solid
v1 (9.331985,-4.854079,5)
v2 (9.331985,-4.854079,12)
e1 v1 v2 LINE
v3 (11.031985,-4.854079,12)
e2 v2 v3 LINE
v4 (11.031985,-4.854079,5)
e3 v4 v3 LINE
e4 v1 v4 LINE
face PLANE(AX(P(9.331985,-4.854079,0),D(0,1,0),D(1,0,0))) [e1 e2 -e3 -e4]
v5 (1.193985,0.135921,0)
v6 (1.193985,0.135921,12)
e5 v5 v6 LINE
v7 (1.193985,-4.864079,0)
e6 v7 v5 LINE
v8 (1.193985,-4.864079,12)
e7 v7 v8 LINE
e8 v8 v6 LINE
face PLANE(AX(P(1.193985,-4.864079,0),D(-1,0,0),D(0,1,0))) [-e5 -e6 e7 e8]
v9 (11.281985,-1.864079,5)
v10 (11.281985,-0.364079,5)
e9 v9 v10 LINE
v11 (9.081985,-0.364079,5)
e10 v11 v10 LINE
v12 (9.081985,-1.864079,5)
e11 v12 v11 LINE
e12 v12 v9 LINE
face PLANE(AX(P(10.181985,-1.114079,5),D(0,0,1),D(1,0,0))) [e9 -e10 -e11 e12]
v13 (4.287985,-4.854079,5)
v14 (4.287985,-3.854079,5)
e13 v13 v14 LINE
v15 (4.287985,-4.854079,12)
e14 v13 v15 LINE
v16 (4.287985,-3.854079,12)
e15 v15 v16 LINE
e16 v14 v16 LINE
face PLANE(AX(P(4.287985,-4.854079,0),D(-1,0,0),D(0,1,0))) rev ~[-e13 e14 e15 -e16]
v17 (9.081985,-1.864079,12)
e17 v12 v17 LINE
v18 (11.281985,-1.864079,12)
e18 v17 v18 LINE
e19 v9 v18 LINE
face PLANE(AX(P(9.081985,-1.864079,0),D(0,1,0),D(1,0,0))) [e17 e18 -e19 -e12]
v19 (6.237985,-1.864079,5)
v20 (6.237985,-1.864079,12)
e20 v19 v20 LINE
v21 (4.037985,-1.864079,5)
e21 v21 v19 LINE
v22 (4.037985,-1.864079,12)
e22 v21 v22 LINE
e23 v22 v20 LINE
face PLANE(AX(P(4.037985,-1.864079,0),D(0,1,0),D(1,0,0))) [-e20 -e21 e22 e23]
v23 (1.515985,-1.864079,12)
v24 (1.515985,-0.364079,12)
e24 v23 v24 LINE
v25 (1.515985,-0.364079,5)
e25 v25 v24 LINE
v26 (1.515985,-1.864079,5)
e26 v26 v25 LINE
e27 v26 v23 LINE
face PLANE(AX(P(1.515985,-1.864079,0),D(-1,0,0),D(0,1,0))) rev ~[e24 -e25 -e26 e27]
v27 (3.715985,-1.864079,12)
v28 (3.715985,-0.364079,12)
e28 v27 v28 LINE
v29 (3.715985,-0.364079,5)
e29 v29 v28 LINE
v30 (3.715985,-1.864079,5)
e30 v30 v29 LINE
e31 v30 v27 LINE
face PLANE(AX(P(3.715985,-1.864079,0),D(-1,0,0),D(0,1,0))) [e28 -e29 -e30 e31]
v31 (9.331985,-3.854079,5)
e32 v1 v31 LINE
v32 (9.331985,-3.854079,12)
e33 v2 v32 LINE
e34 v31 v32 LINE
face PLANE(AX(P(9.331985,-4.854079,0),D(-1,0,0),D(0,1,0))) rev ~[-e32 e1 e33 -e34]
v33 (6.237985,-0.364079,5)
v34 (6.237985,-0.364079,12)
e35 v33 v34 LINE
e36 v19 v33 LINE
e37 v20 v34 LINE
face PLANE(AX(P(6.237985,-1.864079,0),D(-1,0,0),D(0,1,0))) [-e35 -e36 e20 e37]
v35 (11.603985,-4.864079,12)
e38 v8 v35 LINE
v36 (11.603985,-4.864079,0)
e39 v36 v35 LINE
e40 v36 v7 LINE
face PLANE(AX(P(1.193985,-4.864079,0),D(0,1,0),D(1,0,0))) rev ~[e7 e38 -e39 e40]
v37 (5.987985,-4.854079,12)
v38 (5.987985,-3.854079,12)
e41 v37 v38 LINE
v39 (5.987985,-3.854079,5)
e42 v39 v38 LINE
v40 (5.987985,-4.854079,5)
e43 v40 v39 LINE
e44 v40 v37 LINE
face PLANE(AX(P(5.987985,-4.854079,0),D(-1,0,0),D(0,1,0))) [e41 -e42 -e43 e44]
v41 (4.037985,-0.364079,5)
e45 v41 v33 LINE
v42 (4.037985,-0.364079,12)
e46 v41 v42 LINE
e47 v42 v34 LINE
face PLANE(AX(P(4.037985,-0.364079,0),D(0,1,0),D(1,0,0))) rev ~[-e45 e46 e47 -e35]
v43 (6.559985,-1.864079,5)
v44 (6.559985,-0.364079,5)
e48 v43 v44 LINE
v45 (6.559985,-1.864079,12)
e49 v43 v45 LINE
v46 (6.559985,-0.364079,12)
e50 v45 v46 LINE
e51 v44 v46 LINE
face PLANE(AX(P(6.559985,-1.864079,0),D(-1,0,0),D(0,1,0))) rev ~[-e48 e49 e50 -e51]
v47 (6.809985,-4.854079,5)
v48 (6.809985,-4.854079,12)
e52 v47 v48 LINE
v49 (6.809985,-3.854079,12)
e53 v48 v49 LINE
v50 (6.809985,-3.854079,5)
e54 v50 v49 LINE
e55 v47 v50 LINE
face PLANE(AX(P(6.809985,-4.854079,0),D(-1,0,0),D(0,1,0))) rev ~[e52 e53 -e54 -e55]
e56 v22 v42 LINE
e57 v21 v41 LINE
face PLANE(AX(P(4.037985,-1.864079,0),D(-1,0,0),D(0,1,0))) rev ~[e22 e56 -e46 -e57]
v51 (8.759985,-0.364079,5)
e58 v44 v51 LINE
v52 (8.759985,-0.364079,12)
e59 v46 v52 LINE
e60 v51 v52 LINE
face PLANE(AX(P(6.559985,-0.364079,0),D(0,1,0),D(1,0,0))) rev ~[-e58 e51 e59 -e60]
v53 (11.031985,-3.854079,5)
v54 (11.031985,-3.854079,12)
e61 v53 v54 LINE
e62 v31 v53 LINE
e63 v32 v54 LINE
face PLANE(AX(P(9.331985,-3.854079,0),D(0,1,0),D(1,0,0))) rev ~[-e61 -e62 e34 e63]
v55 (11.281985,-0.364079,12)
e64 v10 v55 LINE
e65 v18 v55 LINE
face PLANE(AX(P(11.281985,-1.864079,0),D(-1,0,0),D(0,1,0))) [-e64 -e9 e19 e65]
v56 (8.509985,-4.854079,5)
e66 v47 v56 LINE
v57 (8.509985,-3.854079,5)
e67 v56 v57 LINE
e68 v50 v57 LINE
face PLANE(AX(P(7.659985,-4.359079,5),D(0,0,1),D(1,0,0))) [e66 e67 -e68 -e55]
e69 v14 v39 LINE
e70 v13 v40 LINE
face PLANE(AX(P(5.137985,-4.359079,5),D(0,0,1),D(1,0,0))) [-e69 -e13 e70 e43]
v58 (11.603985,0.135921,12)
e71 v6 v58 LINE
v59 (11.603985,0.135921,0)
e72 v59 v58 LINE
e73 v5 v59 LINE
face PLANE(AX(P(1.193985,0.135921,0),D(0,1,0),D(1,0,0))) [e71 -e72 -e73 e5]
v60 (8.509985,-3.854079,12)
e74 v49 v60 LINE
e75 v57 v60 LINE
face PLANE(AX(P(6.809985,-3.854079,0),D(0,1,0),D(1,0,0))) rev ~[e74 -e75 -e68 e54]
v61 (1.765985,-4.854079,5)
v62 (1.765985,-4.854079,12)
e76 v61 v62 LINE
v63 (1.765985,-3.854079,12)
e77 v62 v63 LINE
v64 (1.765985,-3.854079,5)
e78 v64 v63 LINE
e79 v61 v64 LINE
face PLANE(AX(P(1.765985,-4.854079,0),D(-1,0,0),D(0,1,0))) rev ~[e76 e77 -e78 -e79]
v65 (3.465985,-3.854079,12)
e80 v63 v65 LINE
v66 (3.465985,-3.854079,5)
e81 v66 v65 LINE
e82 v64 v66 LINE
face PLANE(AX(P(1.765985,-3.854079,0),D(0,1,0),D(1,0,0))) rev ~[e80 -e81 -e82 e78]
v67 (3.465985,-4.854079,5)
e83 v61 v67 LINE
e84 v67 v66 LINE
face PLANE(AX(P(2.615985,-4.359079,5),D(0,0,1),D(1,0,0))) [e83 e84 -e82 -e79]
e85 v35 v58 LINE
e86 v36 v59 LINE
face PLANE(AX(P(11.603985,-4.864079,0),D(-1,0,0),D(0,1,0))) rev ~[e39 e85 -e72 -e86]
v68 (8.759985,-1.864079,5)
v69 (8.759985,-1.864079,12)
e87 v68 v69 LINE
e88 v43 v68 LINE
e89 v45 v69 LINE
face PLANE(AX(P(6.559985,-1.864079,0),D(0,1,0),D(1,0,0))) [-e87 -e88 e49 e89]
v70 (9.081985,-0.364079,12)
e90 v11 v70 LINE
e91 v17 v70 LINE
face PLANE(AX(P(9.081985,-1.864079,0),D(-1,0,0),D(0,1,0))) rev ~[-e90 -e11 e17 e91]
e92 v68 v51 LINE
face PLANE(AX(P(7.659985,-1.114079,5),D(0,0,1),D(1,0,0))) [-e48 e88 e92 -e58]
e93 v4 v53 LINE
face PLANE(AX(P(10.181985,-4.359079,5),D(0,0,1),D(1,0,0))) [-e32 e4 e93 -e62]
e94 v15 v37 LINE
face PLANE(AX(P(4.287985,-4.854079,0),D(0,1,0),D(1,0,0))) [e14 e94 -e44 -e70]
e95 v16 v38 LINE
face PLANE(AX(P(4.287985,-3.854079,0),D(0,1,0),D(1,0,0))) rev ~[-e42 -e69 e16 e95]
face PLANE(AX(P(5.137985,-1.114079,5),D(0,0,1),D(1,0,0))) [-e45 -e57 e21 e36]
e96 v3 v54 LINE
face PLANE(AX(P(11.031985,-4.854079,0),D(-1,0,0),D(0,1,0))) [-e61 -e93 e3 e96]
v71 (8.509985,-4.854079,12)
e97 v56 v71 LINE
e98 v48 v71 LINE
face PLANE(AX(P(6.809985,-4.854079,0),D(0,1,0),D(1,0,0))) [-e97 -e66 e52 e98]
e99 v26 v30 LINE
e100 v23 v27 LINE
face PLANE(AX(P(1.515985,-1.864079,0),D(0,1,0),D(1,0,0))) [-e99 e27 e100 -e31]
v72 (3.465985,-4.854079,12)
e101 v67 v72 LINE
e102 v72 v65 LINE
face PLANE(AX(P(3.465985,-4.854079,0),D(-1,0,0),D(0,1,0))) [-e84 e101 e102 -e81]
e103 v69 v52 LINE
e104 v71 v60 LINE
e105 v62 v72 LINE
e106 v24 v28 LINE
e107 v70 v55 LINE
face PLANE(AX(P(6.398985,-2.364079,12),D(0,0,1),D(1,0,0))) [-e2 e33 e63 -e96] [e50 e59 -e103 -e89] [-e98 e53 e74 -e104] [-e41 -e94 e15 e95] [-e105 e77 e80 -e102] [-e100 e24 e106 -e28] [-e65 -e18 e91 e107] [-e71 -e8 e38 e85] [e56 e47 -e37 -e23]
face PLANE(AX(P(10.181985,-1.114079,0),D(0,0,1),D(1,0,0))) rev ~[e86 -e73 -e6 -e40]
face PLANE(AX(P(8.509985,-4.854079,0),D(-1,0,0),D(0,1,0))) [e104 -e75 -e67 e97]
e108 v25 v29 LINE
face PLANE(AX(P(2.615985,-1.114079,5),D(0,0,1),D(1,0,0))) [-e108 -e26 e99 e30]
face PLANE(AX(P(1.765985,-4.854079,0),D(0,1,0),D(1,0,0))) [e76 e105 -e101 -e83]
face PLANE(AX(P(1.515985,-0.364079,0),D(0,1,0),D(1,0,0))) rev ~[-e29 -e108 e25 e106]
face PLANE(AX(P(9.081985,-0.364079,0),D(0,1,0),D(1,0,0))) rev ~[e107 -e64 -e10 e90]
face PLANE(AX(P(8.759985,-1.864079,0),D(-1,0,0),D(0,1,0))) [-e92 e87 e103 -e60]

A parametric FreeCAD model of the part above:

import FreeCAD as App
import Part
import Sketcher
from FreeCAD import Vector


def add_polygon(sketch, points):
    """Adds a closed chain of lines whose ends are joined by coincident constraints."""
    first, n = sketch.GeometryCount, len(points)
    for a, b in zip(points, points[1:] + points[:1]):
        sketch.addGeometry(Part.LineSegment(App.Vector(*a, 0), App.Vector(*b, 0)), False)
    for i in range(n):
        sketch.addConstraint(Sketcher.Constraint("Coincident", first + i, 2, first + (i + 1) % n, 1))

doc = App.newDocument("Part")
body = doc.addObject("PartDesign::Body", "Body")

# Sketch on XY plane
sketch1 = body.newObject("Sketcher::SketchObject", "Sketch")
sketch1.AttachmentSupport = (doc.getObject("XY_Plane"), [""])
sketch1.MapMode = "FlatFace"
add_polygon(sketch1, [(1.2, 0.1), (1.2, -4.9), (11.6, -4.9), (11.6, 0.1)])  # lines 0-3
add_polygon(sketch1, [(3.5, -4.9), (1.8, -4.9), (1.8, -3.9), (3.5, -3.9)])  # lines 4-7
add_polygon(sketch1, [(6, -4.9), (4.3, -4.9), (4.3, -3.9), (6, -3.9)])  # lines 8-11
add_polygon(sketch1, [(8.5, -4.9), (6.8, -4.9), (6.8, -3.9), (8.5, -3.9)])  # lines 12-15
add_polygon(sketch1, [(11, -4.9), (9.3, -4.9), (9.3, -3.9), (11, -3.9)])  # lines 16-19
add_polygon(sketch1, [(3.7, -1.9), (1.5, -1.9), (1.5, -0.4), (3.7, -0.4)])  # lines 20-23
add_polygon(sketch1, [(6.2, -1.9), (4, -1.9), (4, -0.4), (6.2, -0.4)])  # lines 24-27
add_polygon(sketch1, [(8.8, -1.9), (6.6, -1.9), (6.6, -0.4), (8.8, -0.4)])  # lines 28-31
add_polygon(sketch1, [(11.3, -1.9), (9.1, -1.9), (9.1, -0.4), (11.3, -0.4)])  # lines 32-35
sketch1.addConstraint(Sketcher.Constraint("Vertical", 0))
sketch1.addConstraint(Sketcher.Constraint("Horizontal", 1))
sketch1.addConstraint(Sketcher.Constraint("Vertical", 2))
sketch1.addConstraint(Sketcher.Constraint("Horizontal", 3))
sketch1.addConstraint(Sketcher.Constraint("Horizontal", 4))
sketch1.addConstraint(Sketcher.Constraint("Vertical", 5))
sketch1.addConstraint(Sketcher.Constraint("Horizontal", 6))
sketch1.addConstraint(Sketcher.Constraint("Vertical", 7))
sketch1.addConstraint(Sketcher.Constraint("Horizontal", 8))
sketch1.addConstraint(Sketcher.Constraint("Vertical", 9))
sketch1.addConstraint(Sketcher.Constraint("Horizontal", 10))
sketch1.addConstraint(Sketcher.Constraint("Vertical", 11))
sketch1.addConstraint(Sketcher.Constraint("Horizontal", 12))
sketch1.addConstraint(Sketcher.Constraint("Vertical", 13))
sketch1.addConstraint(Sketcher.Constraint("Horizontal", 14))
sketch1.addConstraint(Sketcher.Constraint("Vertical", 15))
sketch1.addConstraint(Sketcher.Constraint("Horizontal", 16))
sketch1.addConstraint(Sketcher.Constraint("Vertical", 17))
sketch1.addConstraint(Sketcher.Constraint("Horizontal", 18))
sketch1.addConstraint(Sketcher.Constraint("Vertical", 19))
sketch1.addConstraint(Sketcher.Constraint("Horizontal", 20))
sketch1.addConstraint(Sketcher.Constraint("Vertical", 21))
sketch1.addConstraint(Sketcher.Constraint("Horizontal", 22))
sketch1.addConstraint(Sketcher.Constraint("Vertical", 23))
sketch1.addConstraint(Sketcher.Constraint("Horizontal", 24))
sketch1.addConstraint(Sketcher.Constraint("Vertical", 25))
sketch1.addConstraint(Sketcher.Constraint("Horizontal", 26))
sketch1.addConstraint(Sketcher.Constraint("Vertical", 27))
sketch1.addConstraint(Sketcher.Constraint("Horizontal", 28))
sketch1.addConstraint(Sketcher.Constraint("Vertical", 29))
sketch1.addConstraint(Sketcher.Constraint("Horizontal", 30))
sketch1.addConstraint(Sketcher.Constraint("Vertical", 31))
sketch1.addConstraint(Sketcher.Constraint("Horizontal", 32))
sketch1.addConstraint(Sketcher.Constraint("Vertical", 33))
sketch1.addConstraint(Sketcher.Constraint("Horizontal", 34))
sketch1.addConstraint(Sketcher.Constraint("Vertical", 35))
sketch1.addConstraint(Sketcher.Constraint("Horizontal", 7, 2, 8, 2))
sketch1.addConstraint(Sketcher.Constraint("Horizontal", 6, 2, 9, 2))
sketch1.addConstraint(Sketcher.Constraint("Horizontal", 11, 2, 12, 2))
sketch1.addConstraint(Sketcher.Constraint("Horizontal", 10, 2, 13, 2))
sketch1.addConstraint(Sketcher.Constraint("Horizontal", 15, 2, 16, 2))
sketch1.addConstraint(Sketcher.Constraint("Horizontal", 14, 2, 17, 2))
sketch1.addConstraint(Sketcher.Constraint("Horizontal", 23, 2, 24, 2))
sketch1.addConstraint(Sketcher.Constraint("Horizontal", 22, 2, 25, 2))
sketch1.addConstraint(Sketcher.Constraint("Horizontal", 27, 2, 28, 2))
sketch1.addConstraint(Sketcher.Constraint("Horizontal", 26, 2, 29, 2))
sketch1.addConstraint(Sketcher.Constraint("Horizontal", 31, 2, 32, 2))
sketch1.addConstraint(Sketcher.Constraint("Horizontal", 30, 2, 33, 2))
sketch1.addConstraint(Sketcher.Constraint("Equal", 6, 8))
sketch1.addConstraint(Sketcher.Constraint("Equal", 10, 12))
sketch1.addConstraint(Sketcher.Constraint("Equal", 14, 16))
sketch1.addConstraint(Sketcher.Constraint("Equal", 22, 24))
sketch1.addConstraint(Sketcher.Constraint("Equal", 26, 28))
sketch1.addConstraint(Sketcher.Constraint("Equal", 30, 32))
sketch1.addConstraint(Sketcher.Constraint("DistanceY", 0, 2, 0, 1, 5.0))
sketch1.addConstraint(Sketcher.Constraint("DistanceY", 5, 1, 5, 2, 1.0))
sketch1.addConstraint(Sketcher.Constraint("DistanceX", 4, 2, 4, 1, 1.7))
sketch1.addConstraint(Sketcher.Constraint("DistanceX", 20, 2, 20, 1, 2.2))
sketch1.addConstraint(Sketcher.Constraint("DistanceY", 21, 1, 21, 2, 1.5))
sketch1.addConstraint(Sketcher.Constraint("DistanceY", 20, 2, 3, 2, 2.0))
sketch1.addConstraint(Sketcher.Constraint("DistanceX", 1, 1, 1, 2, 10.41))
sketch1.addConstraint(Sketcher.Constraint("DistanceY", 0, 2, 4, 2, 0.01))
sketch1.addConstraint(Sketcher.Constraint("DistanceX", 20, 2, 5, 2, 0.25))
sketch1.addConstraint(Sketcher.Constraint("DistanceX", 24, 2, 9, 2, 0.25))
sketch1.addConstraint(Sketcher.Constraint("DistanceX", 28, 2, 13, 2, 0.25))
sketch1.addConstraint(Sketcher.Constraint("DistanceX", 32, 2, 17, 2, 0.25))
sketch1.addConstraint(Sketcher.Constraint("DistanceX", 0, 2, 4, 2, 0.572))
sketch1.addConstraint(Sketcher.Constraint("DistanceX", 7, 2, 8, 2, 0.822))
sketch1.addConstraint(Sketcher.Constraint("DistanceX", 11, 2, 12, 2, 0.822))
sketch1.addConstraint(Sketcher.Constraint("DistanceX", 15, 2, 16, 2, 0.822))
sketch1.addConstraint(Sketcher.Constraint("DistanceY", 0, 2, -1, 1, 4.864079))
sketch1.addConstraint(Sketcher.Constraint("DistanceX", -1, 1, 0, 2, 1.193985))
pad1 = body.newObject("PartDesign::Pad", "Pad")
pad1.Profile = sketch1
pad1.Length = 12

# Sketch on XY plane
sketch2 = body.newObject("Sketcher::SketchObject", "Sketch001")
sketch2.AttachmentSupport = (doc.getObject("XY_Plane"), [""])
sketch2.MapMode = "FlatFace"
add_polygon(sketch2, [(9.1, -0.4), (9.1, -1.9), (11.3, -1.9), (11.3, -0.4)])  # lines 0-3
add_polygon(sketch2, [(6.6, -0.4), (6.6, -1.9), (8.8, -1.9), (8.8, -0.4)])  # lines 4-7
add_polygon(sketch2, [(4, -0.4), (4, -1.9), (6.2, -1.9), (6.2, -0.4)])  # lines 8-11
add_polygon(sketch2, [(1.5, -0.4), (1.5, -1.9), (3.7, -1.9), (3.7, -0.4)])  # lines 12-15
add_polygon(sketch2, [(4.3, -3.9), (4.3, -4.9), (6, -4.9), (6, -3.9)])  # lines 16-19
add_polygon(sketch2, [(1.8, -3.9), (1.8, -4.9), (3.5, -4.9), (3.5, -3.9)])  # lines 20-23
add_polygon(sketch2, [(6.8, -3.9), (6.8, -4.9), (8.5, -4.9), (8.5, -3.9)])  # lines 24-27
add_polygon(sketch2, [(9.3, -3.9), (9.3, -4.9), (11, -4.9), (11, -3.9)])  # lines 28-31
sketch2.addConstraint(Sketcher.Constraint("Vertical", 0))
sketch2.addConstraint(Sketcher.Constraint("Horizontal", 1))
sketch2.addConstraint(Sketcher.Constraint("Vertical", 2))
sketch2.addConstraint(Sketcher.Constraint("Horizontal", 3))
sketch2.addConstraint(Sketcher.Constraint("Vertical", 4))
sketch2.addConstraint(Sketcher.Constraint("Horizontal", 5))
sketch2.addConstraint(Sketcher.Constraint("Vertical", 6))
sketch2.addConstraint(Sketcher.Constraint("Horizontal", 7))
sketch2.addConstraint(Sketcher.Constraint("Vertical", 8))
sketch2.addConstraint(Sketcher.Constraint("Horizontal", 9))
sketch2.addConstraint(Sketcher.Constraint("Vertical", 10))
sketch2.addConstraint(Sketcher.Constraint("Horizontal", 11))
sketch2.addConstraint(Sketcher.Constraint("Vertical", 12))
sketch2.addConstraint(Sketcher.Constraint("Horizontal", 13))
sketch2.addConstraint(Sketcher.Constraint("Vertical", 14))
sketch2.addConstraint(Sketcher.Constraint("Horizontal", 15))
sketch2.addConstraint(Sketcher.Constraint("Vertical", 16))
sketch2.addConstraint(Sketcher.Constraint("Horizontal", 17))
sketch2.addConstraint(Sketcher.Constraint("Vertical", 18))
sketch2.addConstraint(Sketcher.Constraint("Horizontal", 19))
sketch2.addConstraint(Sketcher.Constraint("Vertical", 20))
sketch2.addConstraint(Sketcher.Constraint("Horizontal", 21))
sketch2.addConstraint(Sketcher.Constraint("Vertical", 22))
sketch2.addConstraint(Sketcher.Constraint("Horizontal", 23))
sketch2.addConstraint(Sketcher.Constraint("Vertical", 24))
sketch2.addConstraint(Sketcher.Constraint("Horizontal", 25))
sketch2.addConstraint(Sketcher.Constraint("Vertical", 26))
sketch2.addConstraint(Sketcher.Constraint("Horizontal", 27))
sketch2.addConstraint(Sketcher.Constraint("Vertical", 28))
sketch2.addConstraint(Sketcher.Constraint("Horizontal", 29))
sketch2.addConstraint(Sketcher.Constraint("Vertical", 30))
sketch2.addConstraint(Sketcher.Constraint("Horizontal", 31))
sketch2.addConstraint(Sketcher.Constraint("Horizontal", 1, 2, 4, 2))
sketch2.addConstraint(Sketcher.Constraint("Horizontal", 3, 2, 6, 2))
sketch2.addConstraint(Sketcher.Constraint("Horizontal", 5, 2, 8, 2))
sketch2.addConstraint(Sketcher.Constraint("Horizontal", 7, 2, 10, 2))
sketch2.addConstraint(Sketcher.Constraint("Horizontal", 9, 2, 12, 2))
sketch2.addConstraint(Sketcher.Constraint("Horizontal", 11, 2, 14, 2))
sketch2.addConstraint(Sketcher.Constraint("Horizontal", 17, 2, 20, 2))
sketch2.addConstraint(Sketcher.Constraint("Horizontal", 19, 2, 22, 2))
sketch2.addConstraint(Sketcher.Constraint("Horizontal", 21, 2, 24, 2))
sketch2.addConstraint(Sketcher.Constraint("Horizontal", 23, 2, 26, 2))
sketch2.addConstraint(Sketcher.Constraint("Horizontal", 25, 2, 28, 2))
sketch2.addConstraint(Sketcher.Constraint("Horizontal", 27, 2, 30, 2))
sketch2.addConstraint(Sketcher.Constraint("Equal", 3, 5))
sketch2.addConstraint(Sketcher.Constraint("Equal", 7, 9))
sketch2.addConstraint(Sketcher.Constraint("Equal", 11, 13))
sketch2.addConstraint(Sketcher.Constraint("Equal", 19, 21))
sketch2.addConstraint(Sketcher.Constraint("Equal", 23, 25))
sketch2.addConstraint(Sketcher.Constraint("Equal", 27, 29))
sketch2.addConstraint(Sketcher.Constraint("DistanceX", 1, 1, 1, 2, 2.2))
sketch2.addConstraint(Sketcher.Constraint("DistanceX", 17, 1, 17, 2, 1.7))
sketch2.addConstraint(Sketcher.Constraint("DistanceY", 0, 2, 0, 1, 1.5))
sketch2.addConstraint(Sketcher.Constraint("DistanceY", 16, 2, 8, 2, 3.0))
sketch2.addConstraint(Sketcher.Constraint("DistanceY", 16, 2, 16, 1, 1.01))
sketch2.addConstraint(Sketcher.Constraint("DistanceX", 8, 2, 16, 2, 0.25))
sketch2.addConstraint(Sketcher.Constraint("DistanceX", 12, 2, 20, 2, 0.25))
sketch2.addConstraint(Sketcher.Constraint("DistanceX", 4, 2, 24, 2, 0.25))
sketch2.addConstraint(Sketcher.Constraint("DistanceX", 0, 2, 28, 2, 0.25))
sketch2.addConstraint(Sketcher.Constraint("DistanceX", 4, 2, 0, 2, 2.522))
sketch2.addConstraint(Sketcher.Constraint("DistanceX", 8, 2, 4, 2, 2.522))
sketch2.addConstraint(Sketcher.Constraint("DistanceX", 12, 2, 8, 2, 2.522))
sketch2.addConstraint(Sketcher.Constraint("DistanceY", 0, 2, -1, 1, 1.864079))
sketch2.addConstraint(Sketcher.Constraint("DistanceX", -1, 1, 0, 2, 9.081985))
pad2 = body.newObject("PartDesign::Pad", "Pad001")
pad2.Profile = sketch2
pad2.Length = 5

doc.recompute()
